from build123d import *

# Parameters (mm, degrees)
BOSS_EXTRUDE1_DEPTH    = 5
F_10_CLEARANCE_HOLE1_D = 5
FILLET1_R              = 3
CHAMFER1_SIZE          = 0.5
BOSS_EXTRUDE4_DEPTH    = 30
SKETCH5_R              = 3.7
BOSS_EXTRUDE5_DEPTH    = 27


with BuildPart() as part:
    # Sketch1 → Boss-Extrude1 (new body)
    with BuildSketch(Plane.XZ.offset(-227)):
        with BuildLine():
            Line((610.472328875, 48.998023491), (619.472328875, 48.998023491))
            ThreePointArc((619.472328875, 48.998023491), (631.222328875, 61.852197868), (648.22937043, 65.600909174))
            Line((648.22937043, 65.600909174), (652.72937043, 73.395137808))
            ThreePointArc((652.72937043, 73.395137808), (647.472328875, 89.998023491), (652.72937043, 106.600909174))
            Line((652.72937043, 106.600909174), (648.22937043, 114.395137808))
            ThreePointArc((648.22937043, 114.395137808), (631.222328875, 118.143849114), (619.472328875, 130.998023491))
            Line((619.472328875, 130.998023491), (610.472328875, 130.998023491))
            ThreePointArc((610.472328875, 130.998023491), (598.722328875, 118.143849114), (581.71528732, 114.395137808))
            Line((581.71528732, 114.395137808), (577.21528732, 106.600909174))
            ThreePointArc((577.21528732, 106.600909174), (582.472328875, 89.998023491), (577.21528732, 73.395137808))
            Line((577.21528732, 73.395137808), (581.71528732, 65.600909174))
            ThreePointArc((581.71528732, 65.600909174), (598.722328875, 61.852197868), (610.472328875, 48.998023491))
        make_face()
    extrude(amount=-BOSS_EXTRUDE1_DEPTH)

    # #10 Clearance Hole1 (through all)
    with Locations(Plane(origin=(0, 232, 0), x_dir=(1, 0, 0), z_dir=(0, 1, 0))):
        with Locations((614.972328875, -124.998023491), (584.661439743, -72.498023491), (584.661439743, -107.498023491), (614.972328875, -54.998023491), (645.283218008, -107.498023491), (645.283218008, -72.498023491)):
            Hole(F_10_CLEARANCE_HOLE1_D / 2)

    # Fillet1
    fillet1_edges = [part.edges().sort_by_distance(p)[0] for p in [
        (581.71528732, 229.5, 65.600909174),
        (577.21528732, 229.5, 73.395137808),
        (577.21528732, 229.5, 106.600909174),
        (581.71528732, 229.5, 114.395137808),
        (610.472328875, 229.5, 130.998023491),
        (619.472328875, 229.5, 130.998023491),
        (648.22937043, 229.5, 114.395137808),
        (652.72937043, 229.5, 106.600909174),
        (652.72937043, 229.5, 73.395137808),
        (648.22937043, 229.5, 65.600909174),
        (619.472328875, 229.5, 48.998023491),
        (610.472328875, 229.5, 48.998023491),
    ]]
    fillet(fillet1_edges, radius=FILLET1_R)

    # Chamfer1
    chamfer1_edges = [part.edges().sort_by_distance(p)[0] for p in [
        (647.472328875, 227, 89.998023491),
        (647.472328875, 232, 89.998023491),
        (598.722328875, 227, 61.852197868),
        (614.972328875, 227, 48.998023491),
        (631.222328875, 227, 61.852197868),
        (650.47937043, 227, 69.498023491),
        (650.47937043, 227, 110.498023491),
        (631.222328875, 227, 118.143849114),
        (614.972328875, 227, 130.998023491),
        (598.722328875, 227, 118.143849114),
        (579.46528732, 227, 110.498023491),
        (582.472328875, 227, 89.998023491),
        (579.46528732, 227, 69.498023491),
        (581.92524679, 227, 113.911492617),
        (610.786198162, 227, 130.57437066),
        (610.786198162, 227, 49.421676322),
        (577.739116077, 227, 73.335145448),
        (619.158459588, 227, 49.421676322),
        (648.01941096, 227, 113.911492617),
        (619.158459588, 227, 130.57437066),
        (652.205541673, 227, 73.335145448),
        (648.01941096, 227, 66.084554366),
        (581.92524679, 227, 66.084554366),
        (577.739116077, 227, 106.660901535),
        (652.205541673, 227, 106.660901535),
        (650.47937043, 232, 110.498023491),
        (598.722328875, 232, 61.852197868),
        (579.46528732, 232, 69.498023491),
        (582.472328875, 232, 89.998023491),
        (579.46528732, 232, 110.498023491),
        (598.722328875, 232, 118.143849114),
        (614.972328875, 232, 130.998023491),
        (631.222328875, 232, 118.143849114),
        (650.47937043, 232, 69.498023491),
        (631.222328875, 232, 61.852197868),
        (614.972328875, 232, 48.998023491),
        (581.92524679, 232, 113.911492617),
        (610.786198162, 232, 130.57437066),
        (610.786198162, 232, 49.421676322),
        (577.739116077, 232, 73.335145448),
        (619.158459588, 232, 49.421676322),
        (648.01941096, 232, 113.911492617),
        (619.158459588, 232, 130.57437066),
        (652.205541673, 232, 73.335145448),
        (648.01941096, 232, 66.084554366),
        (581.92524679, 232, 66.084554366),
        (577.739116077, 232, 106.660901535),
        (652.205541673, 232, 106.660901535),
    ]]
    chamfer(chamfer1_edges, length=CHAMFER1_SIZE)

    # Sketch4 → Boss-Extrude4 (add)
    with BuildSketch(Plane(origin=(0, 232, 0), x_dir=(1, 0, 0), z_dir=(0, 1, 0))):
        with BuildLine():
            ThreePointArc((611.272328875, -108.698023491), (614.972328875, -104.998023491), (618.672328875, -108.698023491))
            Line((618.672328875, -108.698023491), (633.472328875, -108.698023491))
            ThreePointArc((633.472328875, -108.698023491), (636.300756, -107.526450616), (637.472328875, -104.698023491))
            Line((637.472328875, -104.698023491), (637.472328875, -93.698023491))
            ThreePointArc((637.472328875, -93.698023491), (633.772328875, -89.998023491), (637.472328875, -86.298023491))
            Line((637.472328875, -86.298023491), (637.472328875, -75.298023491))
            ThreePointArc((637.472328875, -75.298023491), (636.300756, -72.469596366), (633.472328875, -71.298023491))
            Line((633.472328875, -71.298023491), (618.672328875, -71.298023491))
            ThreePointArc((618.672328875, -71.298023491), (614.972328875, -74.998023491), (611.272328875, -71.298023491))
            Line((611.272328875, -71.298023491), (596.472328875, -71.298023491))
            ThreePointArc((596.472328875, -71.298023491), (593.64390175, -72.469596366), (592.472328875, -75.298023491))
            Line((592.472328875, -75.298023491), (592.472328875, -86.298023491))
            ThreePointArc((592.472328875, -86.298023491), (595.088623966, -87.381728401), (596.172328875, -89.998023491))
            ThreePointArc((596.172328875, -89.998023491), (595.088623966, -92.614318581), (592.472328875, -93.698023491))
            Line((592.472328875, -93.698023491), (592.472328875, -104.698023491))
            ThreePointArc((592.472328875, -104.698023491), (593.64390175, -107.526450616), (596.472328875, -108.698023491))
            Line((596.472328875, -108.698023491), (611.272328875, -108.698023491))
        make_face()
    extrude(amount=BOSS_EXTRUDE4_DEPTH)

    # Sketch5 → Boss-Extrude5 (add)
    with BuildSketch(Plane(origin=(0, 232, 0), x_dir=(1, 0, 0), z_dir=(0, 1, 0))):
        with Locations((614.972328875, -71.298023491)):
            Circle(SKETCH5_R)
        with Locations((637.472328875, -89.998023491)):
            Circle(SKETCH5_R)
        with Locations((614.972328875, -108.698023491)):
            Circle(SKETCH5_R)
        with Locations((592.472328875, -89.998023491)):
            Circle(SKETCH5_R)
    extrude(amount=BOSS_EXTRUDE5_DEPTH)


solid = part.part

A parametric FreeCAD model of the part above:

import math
import FreeCAD as App
import Part
import Sketcher

V = App.Vector
Q = App.Units.Quantity


def edges_at(feature, points):
    """Names of the edges that pass closest to the given points."""
    edges = feature.Shape.Edges
    near = lambda p: min(range(len(edges)), key=lambda i: edges[i].distToShape(Part.Vertex(*p))[0])
    return sorted({f"Edge{near(p) + 1}" for p in points})

doc = App.newDocument("Part")
body = doc.addObject("PartDesign::Body", "Body")

# Sketch on XZ plane
sketch1 = body.newObject("Sketcher::SketchObject", "Sketch")
sketch1.AttachmentSupport = (doc.getObject("XZ_Plane"), [""])
sketch1.MapMode = "FlatFace"
sketch1.AttachmentOffset = App.Placement(V(0, 0, -227), App.Rotation())
sketch1.addGeometry(Part.LineSegment(V(610, 49, 0), V(619, 49, 0)), False)
sketch1.addGeometry(Part.ArcOfCircle(Part.Circle(V(646, 37, 0), V(0, 0, 1), 29), math.radians(85), math.radians(155)), False)
sketch1.addGeometry(Part.LineSegment(V(648, 66, 0), V(653, 73, 0)), False)
sketch1.addGeometry(Part.ArcOfCircle(Part.Circle(V(676, 90, 0), V(0, 0, 1), 29), math.radians(145), math.radians(215)), False)
sketch1.addGeometry(Part.LineSegment(V(653, 107, 0), V(648, 114, 0)), False)
sketch1.addGeometry(Part.ArcOfCircle(Part.Circle(V(646, 143, 0), V(0, 0, 1), 29), math.radians(-155), math.radians(-85)), False)
sketch1.addGeometry(Part.LineSegment(V(619, 131, 0), V(610, 131, 0)), False)
sketch1.addGeometry(Part.ArcOfCircle(Part.Circle(V(584, 143, 0), V(0, 0, 1), 29), math.radians(-95), math.radians(-25)), False)
sketch1.addGeometry(Part.LineSegment(V(582, 114, 0), V(577, 107, 0)), False)
sketch1.addGeometry(Part.ArcOfCircle(Part.Circle(V(554, 90, 0), V(0, 0, 1), 29), math.radians(-35), math.radians(35)), False)
sketch1.addGeometry(Part.LineSegment(V(577, 73, 0), V(582, 66, 0)), False)
sketch1.addGeometry(Part.ArcOfCircle(Part.Circle(V(584, 37, 0), V(0, 0, 1), 29), math.radians(25), math.radians(95)), False)
sketch1.addConstraint(Sketcher.Constraint("Coincident", 0, 2, 1, 2))
sketch1.addConstraint(Sketcher.Constraint("Coincident", 1, 1, 2, 1))
sketch1.addConstraint(Sketcher.Constraint("Coincident", 2, 2, 3, 2))
sketch1.addConstraint(Sketcher.Constraint("Coincident", 3, 1, 4, 1))
sketch1.addConstraint(Sketcher.Constraint("Coincident", 4, 2, 5, 2))
sketch1.addConstraint(Sketcher.Constraint("Coincident", 5, 1, 6, 1))
sketch1.addConstraint(Sketcher.Constraint("Coincident", 6, 2, 7, 2))
sketch1.addConstraint(Sketcher.Constraint("Coincident", 7, 1, 8, 1))
sketch1.addConstraint(Sketcher.Constraint("Coincident", 8, 2, 9, 2))
sketch1.addConstraint(Sketcher.Constraint("Coincident", 9, 1, 10, 1))
sketch1.addConstraint(Sketcher.Constraint("Coincident", 10, 2, 11, 2))
sketch1.addConstraint(Sketcher.Constraint("Coincident", 11, 1, 0, 1))
sketch1.addConstraint(Sketcher.Constraint("Horizontal", 0))
sketch1.addConstraint(Sketcher.Constraint("Horizontal", 6))
sketch1.addConstraint(Sketcher.Constraint("Equal", 1, 3))
sketch1.addConstraint(Sketcher.Constraint("Equal", 3, 5))
sketch1.addConstraint(Sketcher.Constraint("Equal", 5, 7))
sketch1.addConstraint(Sketcher.Constraint("Equal", 7, 9))
sketch1.addConstraint(Sketcher.Constraint("Equal", 9, 11))
sketch1.addConstraint(Sketcher.Constraint("Parallel", 2, 8))
sketch1.addConstraint(Sketcher.Constraint("Parallel", 4, 10))
sketch1.addConstraint(Sketcher.Constraint("Horizontal", 5, 3, 7, 3))
sketch1.addConstraint(Sketcher.Constraint("Horizontal", 3, 3, 9, 3))
sketch1.addConstraint(Sketcher.Constraint("Horizontal", 1, 3, 11, 3))
sketch1.addConstraint(Sketcher.Constraint("Horizontal", 4, 2, 7, 1))
sketch1.addConstraint(Sketcher.Constraint("Horizontal", 3, 1, 8, 2))
sketch1.addConstraint(Sketcher.Constraint("Horizontal", 2, 2, 9, 1))
sketch1.addConstraint(Sketcher.Constraint("Horizontal", 1, 1, 10, 2))
sketch1.addConstraint(Sketcher.Constraint("Vertical", 1, 3, 5, 3))
sketch1.addConstraint(Sketcher.Constraint("Vertical", 7, 3, 11, 3))
sketch1.addConstraint(Sketcher.Constraint("Vertical", 2, 2, 3, 1))
sketch1.addConstraint(Sketcher.Constraint("Vertical", 1, 1, 4, 2))
sketch1.addConstraint(Sketcher.Constraint("Vertical", 0, 2, 5, 1))
sketch1.addConstraint(Sketcher.Constraint("DistanceX", 0, 1, 0, 2, Q("9 mm")))
sketch1.addConstraint(Sketcher.Constraint("Angle", 2, Q("60 deg")))
sketch1.addConstraint(Sketcher.Constraint("Distance", 2, Q("9 mm")))
sketch1.addConstraint(Sketcher.Constraint("DistanceY", 0, 2, 3, 3, Q("41 mm")))
sketch1.addConstraint(Sketcher.Constraint("DistanceY", 1, 1, 3, 1, Q("41 mm")))
sketch1.addConstraint(Sketcher.Constraint("Radius", 1, Q("28.846291 mm")))
sketch1.addConstraint(Sketcher.Constraint("DistanceX", -1, 1, 3, 3, Q("676.31862 mm")))
sketch1.addConstraint(Sketcher.Constraint("DistanceY", -1, 1, 5, 3, Q("143.12547 mm")))
sketch1.addConstraint(Sketcher.Constraint("DistanceX", -1, 1, 9, 3, Q("553.626038 mm")))
pad1 = body.newObject("PartDesign::Pad", "Pad")
pad1.Profile = sketch1
pad1.Length = 5
pad1.Reversed = True

# Sketch on XZ plane
sketch2 = body.newObject("Sketcher::SketchObject", "Sketch001")
sketch2.AttachmentSupport = (doc.getObject("XZ_Plane"), [""])
sketch2.MapMode = "FlatFace"
sketch2.AttachmentOffset = App.Placement(V(0, 0, -232), App.Rotation())
sketch2.addGeometry(Part.Circle(V(615, 125, 0), V(0, 0, 1), 2.5), False)
sketch2.addGeometry(Part.Circle(V(584.7, 72.5, 0), V(0, 0, 1), 2.5), False)
sketch2.addGeometry(Part.Circle(V(584.7, 107.5, 0), V(0, 0, 1), 2.5), False)
sketch2.addGeometry(Part.Circle(V(615, 55, 0), V(0, 0, 1), 2.5), False)
sketch2.addGeometry(Part.Circle(V(645.3, 107.5, 0), V(0, 0, 1), 2.5), False)
sketch2.addGeometry(Part.Circle(V(645.3, 72.5, 0), V(0, 0, 1), 2.5), False)
sketch2.addConstraint(Sketcher.Constraint("Equal", 0, 1))
sketch2.addConstraint(Sketcher.Constraint("Equal", 1, 2))
sketch2.addConstraint(Sketcher.Constraint("Equal", 2, 3))
sketch2.addConstraint(Sketcher.Constraint("Equal", 3, 4))
sketch2.addConstraint(Sketcher.Constraint("Equal", 4, 5))
sketch2.addConstraint(Sketcher.Constraint("Horizontal", 2, 3, 4, 3))
sketch2.addConstraint(Sketcher.Constraint("Horizontal", 1, 3, 5, 3))
sketch2.addConstraint(Sketcher.Constraint("Vertical", 1, 3, 2, 3))
sketch2.addConstraint(Sketcher.Constraint("Vertical", 0, 3, 3, 3))
sketch2.addConstraint(Sketcher.Constraint("Vertical", 4, 3, 5, 3))
sketch2.addConstraint(Sketcher.Constraint("Diameter", 0, Q("5 mm")))
sketch2.addConstraint(Sketcher.Constraint("DistanceY", 1, 3, 2, 3, Q("35 mm")))
sketch2.addConstraint(Sketcher.Constraint("DistanceY", 3, 3, 0, 3, Q("70 mm")))
sketch2.addConstraint(Sketcher.Constraint("DistanceY", 1, 3, 0, 3, Q("52.5 mm")))
sketch2.addConstraint(Sketcher.Constraint("DistanceX", -1, 1, 0, 3, Q("614.972329 mm")))
sketch2.addConstraint(Sketcher.Constraint("DistanceX", -1, 1, 1, 3, Q("584.66144 mm")))
sketch2.addConstraint(Sketcher.Constraint("DistanceX", -1, 1, 4, 3, Q("645.283218 mm")))
sketch2.addConstraint(Sketcher.Constraint("DistanceY", -1, 1, 0, 3, Q("124.998023 mm")))
doc.recompute()
hole = body.newObject("PartDesign::Hole", "Hole")
hole.Profile = sketch2
hole.ThreadType = "None"
hole.Diameter = 5
hole.DepthType = "ThroughAll"
hole.Reversed = True
doc.recompute()

fillet = body.newObject("PartDesign::Fillet", "Fillet")
fillet.Base = (hole, edges_at(hole, [
    (581.715, 229.5, 65.601),
    (577.215, 229.5, 73.395),
    (577.215, 229.5, 106.601),
    (581.715, 229.5, 114.395),
    (610.472, 229.5, 130.998),
    (619.472, 229.5, 130.998),
    (648.229, 229.5, 114.395),
    (652.729, 229.5, 106.601),
    (652.729, 229.5, 73.395),
    (648.229, 229.5, 65.601),
    (619.472, 229.5, 48.998),
    (610.472, 229.5, 48.998),
]))
fillet.Radius = 3
doc.recompute()

chamfer = body.newObject("PartDesign::Chamfer", "Chamfer")
chamfer.Base = (fillet, edges_at(fillet, [
    (647.472, 227, 89.998),
    (647.472, 232, 89.998),
    (598.722, 227, 61.852),
    (614.972, 227, 48.998),
    (631.222, 227, 61.852),
    (650.479, 227, 69.498),
    (650.479, 227, 110.498),
    (631.222, 227, 118.144),
    (614.972, 227, 130.998),
    (598.722, 227, 118.144),
    (579.465, 227, 110.498),
    (582.472, 227, 89.998),
    (579.465, 227, 69.498),
    (581.925, 227, 113.911),
    (610.786, 227, 130.574),
    (610.786, 227, 49.422),
    (577.739, 227, 73.335),
    (619.158, 227, 49.422),
    (648.019, 227, 113.911),
    (619.158, 227, 130.574),
    (652.206, 227, 73.335),
    (648.019, 227, 66.085),
    (581.925, 227, 66.085),
    (577.739, 227, 106.661),
    (652.206, 227, 106.661),
    (650.479, 232, 110.498),
    (598.722, 232, 61.852),
    (579.465, 232, 69.498),
    (582.472, 232, 89.998),
    (579.465, 232, 110.498),
    (598.722, 232, 118.144),
    (614.972, 232, 130.998),
    (631.222, 232, 118.144),
    (650.479, 232, 69.498),
    (631.222, 232, 61.852),
    (614.972, 232, 48.998),
    (581.925, 232, 113.911),
    (610.786, 232, 130.574),
    (610.786, 232, 49.422),
    (577.739, 232, 73.335),
    (619.158, 232, 49.422),
    (648.019, 232, 113.911),
    (619.158, 232, 130.574),
    (652.206, 232, 73.335),
    (648.019, 232, 66.085),
    (581.925, 232, 66.085),
    (577.739, 232, 106.661),
    (652.206, 232, 106.661),
]))
chamfer.Size = 0.5

# Sketch on XZ plane
sketch3 = body.newObject("Sketcher::SketchObject", "Sketch002")
sketch3.AttachmentSupport = (doc.getObject("XZ_Plane"), [""])
sketch3.MapMode = "FlatFace"
sketch3.AttachmentOffset = App.Placement(V(0, 0, -232), App.Rotation())
sketch3.addGeometry(Part.ArcOfCircle(Part.Circle(V(615, 108.7, 0), V(0, 0, 1), 3.7), math.radians(180), math.radians(360)), False)
sketch3.addGeometry(Part.LineSegment(V(618.7, 108.7, 0), V(633.5, 108.7, 0)), False)
sketch3.addGeometry(Part.ArcOfCircle(Part.Circle(V(633.5, 104.7, 0), V(0, 0, 1), 4), math.radians(0), math.radians(90)), False)
sketch3.addGeometry(Part.LineSegment(V(637.5, 104.7, 0), V(637.5, 93.7, 0)), False)
sketch3.addGeometry(Part.ArcOfCircle(Part.Circle(V(637.5, 90, 0), V(0, 0, 1), 3.7), math.radians(90), math.radians(270)), False)
sketch3.addGeometry(Part.LineSegment(V(637.5, 86.3, 0), V(637.5, 75.3, 0)), False)
sketch3.addGeometry(Part.ArcOfCircle(Part.Circle(V(633.5, 75.3, 0), V(0, 0, 1), 4), math.radians(-90), math.radians(0)), False)
sketch3.addGeometry(Part.LineSegment(V(633.5, 71.3, 0), V(618.7, 71.3, 0)), False)
sketch3.addGeometry(Part.ArcOfCircle(Part.Circle(V(615, 71.3, 0), V(0, 0, 1), 3.7), math.radians(0), math.radians(180)), False)
sketch3.addGeometry(Part.LineSegment(V(611.3, 71.3, 0), V(596.5, 71.3, 0)), False)
sketch3.addGeometry(Part.ArcOfCircle(Part.Circle(V(596.5, 75.3, 0), V(0, 0, 1), 4), math.radians(180), math.radians(270)), False)
sketch3.addGeometry(Part.LineSegment(V(592.5, 75.3, 0), V(592.5, 86.3, 0)), False)
sketch3.addGeometry(Part.ArcOfCircle(Part.Circle(V(592.5, 90, 0), V(0, 0, 1), 3.7), math.radians(-90), math.radians(0)), False)
sketch3.addGeometry(Part.ArcOfCircle(Part.Circle(V(592.5, 90, 0), V(0, 0, 1), 3.7), math.radians(0), math.radians(90)), False)
sketch3.addGeometry(Part.LineSegment(V(592.5, 93.7, 0), V(592.5, 104.7, 0)), False)
sketch3.addGeometry(Part.ArcOfCircle(Part.Circle(V(596.5, 104.7, 0), V(0, 0, 1), 4), math.radians(90), math.radians(180)), False)
sketch3.addGeometry(Part.LineSegment(V(596.5, 108.7, 0), V(611.3, 108.7, 0)), False)
sketch3.addConstraint(Sketcher.Constraint("Coincident", 0, 2, 1, 1))
sketch3.addConstraint(Sketcher.Constraint("Tangent", 1, 2, 2, 2))
sketch3.addConstraint(Sketcher.Constraint("Tangent", 2, 1, 3, 1))
sketch3.addConstraint(Sketcher.Constraint("Coincident", 3, 2, 4, 1))
sketch3.addConstraint(Sketcher.Constraint("Coincident", 4, 2, 5, 1))
sketch3.addConstraint(Sketcher.Constraint("Tangent", 5, 2, 6, 2))
sketch3.addConstraint(Sketcher.Constraint("Tangent", 6, 1, 7, 1))
sketch3.addConstraint(Sketcher.Constraint("Coincident", 7, 2, 8, 1))
sketch3.addConstraint(Sketcher.Constraint("Coincident", 8, 2, 9, 1))
sketch3.addConstraint(Sketcher.Constraint("Tangent", 9, 2, 10, 2))
sketch3.addConstraint(Sketcher.Constraint("Tangent", 10, 1, 11, 1))
sketch3.addConstraint(Sketcher.Constraint("Coincident", 11, 2, 12, 1))
sketch3.addConstraint(Sketcher.Constraint("Tangent", 12, 2, 13, 1))
sketch3.addConstraint(Sketcher.Constraint("Coincident", 13, 2, 14, 1))
sketch3.addConstraint(Sketcher.Constraint("Tangent", 14, 2, 15, 2))
sketch3.addConstraint(Sketcher.Constraint("Tangent", 15, 1, 16, 1))
sketch3.addConstraint(Sketcher.Constraint("Coincident", 16, 2, 0, 1))
sketch3.addConstraint(Sketcher.Constraint("Horizontal", 1))
sketch3.addConstraint(Sketcher.Constraint("Vertical", 3))
sketch3.addConstraint(Sketcher.Constraint("Vertical", 5))
sketch3.addConstraint(Sketcher.Constraint("Horizontal", 7))
sketch3.addConstraint(Sketcher.Constraint("Horizontal", 9))
sketch3.addConstraint(Sketcher.Constraint("Vertical", 11))
sketch3.addConstraint(Sketcher.Constraint("Vertical", 14))
sketch3.addConstraint(Sketcher.Constraint("Horizontal", 16))
sketch3.addConstraint(Sketcher.Constraint("Equal", 0, 4))
sketch3.addConstraint(Sketcher.Constraint("Equal", 2, 6))
sketch3.addConstraint(Sketcher.Constraint("Equal", 4, 8))
sketch3.addConstraint(Sketcher.Constraint("Equal", 6, 10))
sketch3.addConstraint(Sketcher.Constraint("Equal", 8, 12))
sketch3.addConstraint(Sketcher.Constraint("Equal", 12, 13))
sketch3.addConstraint(Sketcher.Constraint("Equal", 10, 15))
sketch3.addConstraint(Sketcher.Constraint("Horizontal", 6, 3, 10, 3))
sketch3.addConstraint(Sketcher.Constraint("Horizontal", 4, 3, 12, 3))
sketch3.addConstraint(Sketcher.Constraint("Horizontal", 2, 3, 15, 3))
sketch3.addConstraint(Sketcher.Constraint("Horizontal", 8, 3, 6, 1))
sketch3.addConstraint(Sketcher.Constraint("Horizontal", 13, 3, 12, 2))
sketch3.addConstraint(Sketcher.Constraint("Vertical", 2, 3, 6, 3))
sketch3.addConstraint(Sketcher.Constraint("Vertical", 0, 3, 8, 3))
sketch3.addConstraint(Sketcher.Constraint("Vertical", 10, 3, 15, 3))
sketch3.addConstraint(Sketcher.Constraint("Vertical", 4, 3, 2, 1))
sketch3.addConstraint(Sketcher.Constraint("Vertical", 13, 3, 10, 1))
sketch3.addConstraint(Sketcher.Constraint("Equal", 7, 9))
sketch3.addConstraint(Sketcher.Constraint("Equal", 3, 5))
sketch3.addConstraint(Sketcher.Constraint("Radius", 2, Q("4 mm")))
sketch3.addConstraint(Sketcher.Constraint("Radius", 0, Q("3.7 mm")))
sketch3.addConstraint(Sketcher.Constraint("DistanceY", 3, 2, 3, 1, Q("11 mm")))
sketch3.addConstraint(Sketcher.Constraint("DistanceX", 1, 1, 1, 2, Q("14.8 mm")))
sketch3.addConstraint(Sketcher.Constraint("DistanceY", 2, 3, 0, 3, Q("4 mm")))
sketch3.addConstraint(Sketcher.Constraint("DistanceX", -1, 1, 0, 3, Q("614.972329 mm")))
sketch3.addConstraint(Sketcher.Constraint("DistanceY", -1, 1, 0, 3, Q("108.698023 mm")))
pad2 = body.newObject("PartDesign::Pad", "Pad001")
pad2.Profile = sketch3
pad2.Length = 30
pad2.Reversed = True

# Sketch on XZ plane
sketch4 = body.newObject("Sketcher::SketchObject", "Sketch003")
sketch4.AttachmentSupport = (doc.getObject("XZ_Plane"), [""])
sketch4.MapMode = "FlatFace"
sketch4.AttachmentOffset = App.Placement(V(0, 0, -232), App.Rotation())
sketch4.addGeometry(Part.Circle(V(615, 71.3, 0), V(0, 0, 1), 3.7), False)
sketch4.addGeometry(Part.Circle(V(637.5, 90, 0), V(0, 0, 1), 3.7), False)
sketch4.addGeometry(Part.Circle(V(615, 108.7, 0), V(0, 0, 1), 3.7), False)
sketch4.addGeometry(Part.Circle(V(592.5, 90, 0), V(0, 0, 1), 3.7), False)
sketch4.addConstraint(Sketcher.Constraint("Equal", 0, 1))
sketch4.addConstraint(Sketcher.Constraint("Equal", 1, 2))
sketch4.addConstraint(Sketcher.Constraint("Equal", 2, 3))
sketch4.addConstraint(Sketcher.Constraint("Horizontal", 1, 3, 3, 3))
sketch4.addConstraint(Sketcher.Constraint("Vertical", 0, 3, 2, 3))
sketch4.addConstraint(Sketcher.Constraint("Diameter", 0, Q("7.4 mm")))
sketch4.addConstraint(Sketcher.Constraint("DistanceX", 3, 3, 1, 3, Q("45 mm")))
sketch4.addConstraint(Sketcher.Constraint("DistanceX", 0, 3, 1, 3, Q("22.5 mm")))
sketch4.addConstraint(Sketcher.Constraint("DistanceY", 0, 3, 1, 3, Q("18.7 mm")))
sketch4.addConstraint(Sketcher.Constraint("DistanceY", 1, 3, 2, 3, Q("18.7 mm")))
sketch4.addConstraint(Sketcher.Constraint("DistanceX", -1, 1, 0, 3, Q("614.972329 mm")))
sketch4.addConstraint(Sketcher.Constraint("DistanceY", -1, 1, 0, 3, Q("71.298023 mm")))
pad3 = body.newObject("PartDesign::Pad", "Pad002")
pad3.Profile = sketch4
pad3.Length = 27
pad3.Reversed = True

doc.recompute()
